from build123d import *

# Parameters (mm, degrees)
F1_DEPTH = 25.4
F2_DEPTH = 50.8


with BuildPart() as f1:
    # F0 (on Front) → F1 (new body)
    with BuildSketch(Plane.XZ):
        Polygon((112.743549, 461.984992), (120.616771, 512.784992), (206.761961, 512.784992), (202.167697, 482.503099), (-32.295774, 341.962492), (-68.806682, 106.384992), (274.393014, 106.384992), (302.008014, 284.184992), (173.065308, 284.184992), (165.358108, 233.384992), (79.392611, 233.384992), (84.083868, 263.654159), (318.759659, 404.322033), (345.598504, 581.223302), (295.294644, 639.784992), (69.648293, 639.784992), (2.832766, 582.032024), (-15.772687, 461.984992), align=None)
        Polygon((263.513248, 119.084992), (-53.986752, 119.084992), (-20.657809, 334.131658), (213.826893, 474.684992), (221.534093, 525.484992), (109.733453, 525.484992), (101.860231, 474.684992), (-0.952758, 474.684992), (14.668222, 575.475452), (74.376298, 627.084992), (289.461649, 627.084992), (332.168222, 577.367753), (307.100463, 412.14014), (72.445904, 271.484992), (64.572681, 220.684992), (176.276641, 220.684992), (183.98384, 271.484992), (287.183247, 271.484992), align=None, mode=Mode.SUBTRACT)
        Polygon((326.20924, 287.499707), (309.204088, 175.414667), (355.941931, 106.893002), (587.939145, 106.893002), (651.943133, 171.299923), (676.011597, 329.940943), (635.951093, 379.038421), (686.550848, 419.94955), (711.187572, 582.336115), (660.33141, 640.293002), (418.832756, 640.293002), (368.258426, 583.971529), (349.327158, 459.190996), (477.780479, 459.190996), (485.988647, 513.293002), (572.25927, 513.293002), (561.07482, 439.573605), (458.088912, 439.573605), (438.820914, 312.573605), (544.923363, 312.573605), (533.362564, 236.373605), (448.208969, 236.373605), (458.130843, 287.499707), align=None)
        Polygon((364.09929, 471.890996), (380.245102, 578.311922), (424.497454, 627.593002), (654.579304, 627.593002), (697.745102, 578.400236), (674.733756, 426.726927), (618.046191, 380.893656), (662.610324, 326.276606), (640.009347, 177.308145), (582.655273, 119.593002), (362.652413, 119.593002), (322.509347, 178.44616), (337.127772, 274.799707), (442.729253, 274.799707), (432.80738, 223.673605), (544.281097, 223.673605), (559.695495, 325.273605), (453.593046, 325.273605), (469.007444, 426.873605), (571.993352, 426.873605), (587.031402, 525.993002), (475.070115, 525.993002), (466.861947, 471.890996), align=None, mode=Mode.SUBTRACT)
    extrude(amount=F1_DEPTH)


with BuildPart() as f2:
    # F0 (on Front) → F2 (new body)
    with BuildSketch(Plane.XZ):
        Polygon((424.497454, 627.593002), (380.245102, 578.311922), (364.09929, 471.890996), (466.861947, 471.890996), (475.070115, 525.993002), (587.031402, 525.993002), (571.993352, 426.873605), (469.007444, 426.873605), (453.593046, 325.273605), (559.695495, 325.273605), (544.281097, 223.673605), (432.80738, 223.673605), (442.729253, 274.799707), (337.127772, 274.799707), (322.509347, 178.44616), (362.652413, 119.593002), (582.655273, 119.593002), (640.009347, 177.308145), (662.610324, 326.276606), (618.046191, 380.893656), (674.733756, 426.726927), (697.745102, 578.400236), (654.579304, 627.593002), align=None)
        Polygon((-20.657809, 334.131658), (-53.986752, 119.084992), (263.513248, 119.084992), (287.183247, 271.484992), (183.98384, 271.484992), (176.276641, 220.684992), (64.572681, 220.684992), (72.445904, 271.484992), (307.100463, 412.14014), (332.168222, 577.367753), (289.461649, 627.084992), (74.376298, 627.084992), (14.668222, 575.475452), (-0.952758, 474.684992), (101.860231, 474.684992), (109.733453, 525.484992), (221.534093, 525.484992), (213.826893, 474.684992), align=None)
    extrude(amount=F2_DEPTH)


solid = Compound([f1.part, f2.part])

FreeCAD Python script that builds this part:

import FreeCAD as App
import Part
import Sketcher
from FreeCAD import Vector
Q = App.Units.Quantity


def add_polygon(sketch, points):
    """Adds a closed chain of lines whose ends are joined by coincident constraints."""
    first, n = sketch.GeometryCount, len(points)
    for a, b in zip(points, points[1:] + points[:1]):
        sketch.addGeometry(Part.LineSegment(App.Vector(*a, 0), App.Vector(*b, 0)), False)
    for i in range(n):
        sketch.addConstraint(Sketcher.Constraint("Coincident", first + i, 2, first + (i + 1) % n, 1))

doc = App.newDocument("Part")
body = doc.addObject("PartDesign::Body", "Body")
body.AllowCompound = True

sketch1 = body.newObject("Sketcher::SketchObject", "Sketch")
sketch1.AttachmentSupport = (doc.getObject("XZ_Plane"), [""])
sketch1.MapMode = "FlatFace"
add_polygon(sketch1, [(113, 462), (121, 513), (207, 513), (202, 483), (-32, 342), (-69, 106), (274, 106), (302, 284), (173, 284), (165, 233), (79, 233), (84, 264), (319, 404), (346, 581), (295, 640), (70, 640), (3, 582), (-16, 462)])
add_polygon(sketch1, [(287, 271), (264, 119), (-54, 119), (-21, 334), (214, 475), (222, 525), (110, 525), (102, 475), (-1, 475), (15, 575), (74, 627), (289, 627), (332, 577), (307, 412), (72, 271), (65, 221), (176, 221), (184, 271)])
add_polygon(sketch1, [(326, 287), (309, 175), (356, 107), (588, 107), (652, 171), (676, 330), (636, 379), (687, 420), (711, 582), (660, 640), (419, 640), (368, 584), (349, 459), (478, 459), (486, 513), (572, 513), (561, 440), (458, 440), (439, 313), (545, 313), (533, 236), (448, 236), (458, 287)])
add_polygon(sketch1, [(467, 472), (364, 472), (380, 578), (424, 628), (655, 628), (698, 578), (675, 427), (618, 381), (663, 326), (640, 177), (583, 120), (363, 120), (323, 178), (337, 275), (443, 275), (433, 224), (544, 224), (560, 325), (454, 325), (469, 427), (572, 427), (587, 526), (475, 526)])
sketch1.addConstraint(Sketcher.Constraint("Horizontal", 1))
sketch1.addConstraint(Sketcher.Constraint("Horizontal", 5))
sketch1.addConstraint(Sketcher.Constraint("Horizontal", 7))
sketch1.addConstraint(Sketcher.Constraint("Horizontal", 9))
sketch1.addConstraint(Sketcher.Constraint("Horizontal", 14))
sketch1.addConstraint(Sketcher.Constraint("Horizontal", 17))
sketch1.addConstraint(Sketcher.Constraint("Horizontal", 19))
sketch1.addConstraint(Sketcher.Constraint("Horizontal", 23))
sketch1.addConstraint(Sketcher.Constraint("Horizontal", 25))
sketch1.addConstraint(Sketcher.Constraint("Horizontal", 28))
sketch1.addConstraint(Sketcher.Constraint("Horizontal", 33))
sketch1.addConstraint(Sketcher.Constraint("Horizontal", 35))
sketch1.addConstraint(Sketcher.Constraint("Horizontal", 38))
sketch1.addConstraint(Sketcher.Constraint("Horizontal", 45))
sketch1.addConstraint(Sketcher.Constraint("Horizontal", 48))
sketch1.addConstraint(Sketcher.Constraint("Horizontal", 50))
sketch1.addConstraint(Sketcher.Constraint("Horizontal", 52))
sketch1.addConstraint(Sketcher.Constraint("Horizontal", 54))
sketch1.addConstraint(Sketcher.Constraint("Horizontal", 56))
sketch1.addConstraint(Sketcher.Constraint("Horizontal", 58))
sketch1.addConstraint(Sketcher.Constraint("Horizontal", 59))
sketch1.addConstraint(Sketcher.Constraint("Horizontal", 62))
sketch1.addConstraint(Sketcher.Constraint("Horizontal", 69))
sketch1.addConstraint(Sketcher.Constraint("Horizontal", 72))
sketch1.addConstraint(Sketcher.Constraint("Horizontal", 74))
sketch1.addConstraint(Sketcher.Constraint("Horizontal", 76))
sketch1.addConstraint(Sketcher.Constraint("Horizontal", 78))
sketch1.addConstraint(Sketcher.Constraint("Horizontal", 80))
sketch1.addConstraint(Sketcher.Constraint("Parallel", 0, 4))
sketch1.addConstraint(Sketcher.Constraint("Parallel", 2, 8))
sketch1.addConstraint(Sketcher.Constraint("Parallel", 4, 10))
sketch1.addConstraint(Sketcher.Constraint("Parallel", 3, 11))
sketch1.addConstraint(Sketcher.Constraint("Parallel", 8, 12))
sketch1.addConstraint(Sketcher.Constraint("Parallel", 10, 16))
sketch1.addConstraint(Sketcher.Constraint("Parallel", 6, 18))
sketch1.addConstraint(Sketcher.Constraint("Parallel", 16, 20))
sketch1.addConstraint(Sketcher.Constraint("Parallel", 11, 21))
sketch1.addConstraint(Sketcher.Constraint("Parallel", 12, 22))
sketch1.addConstraint(Sketcher.Constraint("Parallel", 20, 24))
sketch1.addConstraint(Sketcher.Constraint("Parallel", 24, 26))
sketch1.addConstraint(Sketcher.Constraint("Parallel", 15, 27))
sketch1.addConstraint(Sketcher.Constraint("Parallel", 13, 29))
sketch1.addConstraint(Sketcher.Constraint("Parallel", 22, 30))
sketch1.addConstraint(Sketcher.Constraint("Parallel", 21, 31))
sketch1.addConstraint(Sketcher.Constraint("Parallel", 26, 32))
sketch1.addConstraint(Sketcher.Constraint("Parallel", 30, 34))
sketch1.addConstraint(Sketcher.Constraint("Parallel", 34, 36))
sketch1.addConstraint(Sketcher.Constraint("Parallel", 36, 40))
sketch1.addConstraint(Sketcher.Constraint("Parallel", 40, 43))
sketch1.addConstraint(Sketcher.Constraint("Parallel", 43, 47))
sketch1.addConstraint(Sketcher.Constraint("Parallel", 47, 49))
sketch1.addConstraint(Sketcher.Constraint("Parallel", 49, 51))
sketch1.addConstraint(Sketcher.Constraint("Parallel", 51, 53))
sketch1.addConstraint(Sketcher.Constraint("Parallel", 53, 55))
sketch1.addConstraint(Sketcher.Constraint("Parallel", 55, 60))
sketch1.addConstraint(Sketcher.Constraint("Parallel", 46, 61))
sketch1.addConstraint(Sketcher.Constraint("Parallel", 44, 63))
sketch1.addConstraint(Sketcher.Constraint("Parallel", 60, 64))
sketch1.addConstraint(Sketcher.Constraint("Parallel", 42, 65))
sketch1.addConstraint(Sketcher.Constraint("Parallel", 41, 66))
sketch1.addConstraint(Sketcher.Constraint("Parallel", 64, 67))
sketch1.addConstraint(Sketcher.Constraint("Parallel", 39, 68))
sketch1.addConstraint(Sketcher.Constraint("Parallel", 37, 70))
sketch1.addConstraint(Sketcher.Constraint("Parallel", 67, 71))
sketch1.addConstraint(Sketcher.Constraint("Parallel", 57, 73))
sketch1.addConstraint(Sketcher.Constraint("Parallel", 71, 75))
sketch1.addConstraint(Sketcher.Constraint("Parallel", 75, 77))
sketch1.addConstraint(Sketcher.Constraint("Parallel", 77, 79))
sketch1.addConstraint(Sketcher.Constraint("Parallel", 79, 81))
sketch1.addConstraint(Sketcher.Constraint("Horizontal", 21, 2, 24, 2))
sketch1.addConstraint(Sketcher.Constraint("Horizontal", 31, 2, 34, 2))
sketch1.addConstraint(Sketcher.Constraint("Equal", 54, 76))
sketch1.addConstraint(Sketcher.Constraint("Equal", 52, 78))
sketch1.addConstraint(Sketcher.Constraint("Equal", 8, 22))
sketch1.addConstraint(Sketcher.Constraint("Equal", 0, 24))
sketch1.addConstraint(Sketcher.Constraint("Equal", 24, 32))
sketch1.addConstraint(Sketcher.Constraint("Equal", 57, 73))
sketch1.addConstraint(Sketcher.Constraint("Equal", 75, 77))
sketch1.addConstraint(Sketcher.Constraint("Equal", 49, 81))
sketch1.addConstraint(Sketcher.Constraint("DistanceX", 19, 2, 19, 1, Q("12.5 in")))
sketch1.addConstraint(Sketcher.Constraint("DistanceX", 23, 2, 23, 1, Q("4.4016 in")))
sketch1.addConstraint(Sketcher.Constraint("Distance", 18, Q("154.227199 mm")))
sketch1.addConstraint(Sketcher.Constraint("DistanceX", 1, 1, 1, 2, Q("86.14519 mm")))
sketch1.addConstraint(Sketcher.Constraint("DistanceX", 14, 2, 14, 1, Q("225.646351 mm")))
sketch1.addConstraint(Sketcher.Constraint("DistanceX", 25, 2, 25, 1, Q("102.812989 mm")))
sketch1.addConstraint(Sketcher.Constraint("DistanceX", 28, 1, 28, 2, Q("215.085351 mm")))
sketch1.addConstraint(Sketcher.Constraint("DistanceX", 33, 1, 33, 2, Q("111.70396 mm")))
sketch1.addConstraint(Sketcher.Constraint("DistanceX", 48, 1, 48, 2, Q("128.453321 mm")))
sketch1.addConstraint(Sketcher.Constraint("DistanceX", 52, 2, 52, 1, Q("102.985908 mm")))
sketch1.addConstraint(Sketcher.Constraint("DistanceX", 54, 1, 54, 2, Q("106.102449 mm")))
sketch1.addConstraint(Sketcher.Constraint("DistanceX", 62, 1, 62, 2, Q("230.08185 mm")))
sketch1.addConstraint(Sketcher.Constraint("DistanceX", 69, 2, 69, 1, Q("220.00286 mm")))
sketch1.addConstraint(Sketcher.Constraint("DistanceX", 72, 1, 72, 2, Q("105.601481 mm")))
sketch1.addConstraint(Sketcher.Constraint("DistanceY", -1, 1, 2, 2, Q("482.503099 mm")))
sketch1.addConstraint(Sketcher.Constraint("DistanceY", -1, 1, 12, 2, Q("581.223302 mm")))
sketch1.addConstraint(Sketcher.Constraint("DistanceX", -1, 1, 27, 2, Q("74.376298 mm")))
sketch1.addConstraint(Sketcher.Constraint("DistanceY", -1, 1, 37, 2, Q("106.893002 mm")))
sketch1.addConstraint(Sketcher.Constraint("DistanceY", -1, 1, 44, 2, Q("640.293002 mm")))
sketch1.addConstraint(Sketcher.Constraint("DistanceY", -1, 1, 49, 2, Q("513.293002 mm")))
sketch1.addConstraint(Sketcher.Constraint("DistanceX", -1, 1, 60, 2, Q("380.245102 mm")))
sketch1.addConstraint(Sketcher.Constraint("DistanceY", -1, 1, 61, 2, Q("627.593002 mm")))
sketch1.addConstraint(Sketcher.Constraint("DistanceX", -1, 1, 63, 2, Q("697.745102 mm")))
sketch1.addConstraint(Sketcher.Constraint("DistanceY", -1, 1, 68, 2, Q("119.593002 mm")))
sketch1.addConstraint(Sketcher.Constraint("DistanceX", -1, 1, 79, 2, Q("587.031402 mm")))
sketch1.addConstraint(Sketcher.Constraint("DistanceY", -1, 1, 79, 2, Q("525.993002 mm")))
sketch1.addConstraint(Sketcher.Constraint("Distance", 3, Q("273.358339 mm")))
sketch1.addConstraint(Sketcher.Constraint("Distance", 8, Q("51.381329 mm")))
sketch1.addConstraint(Sketcher.Constraint("Distance", 11, Q("273.60588 mm")))
sketch1.addConstraint(Sketcher.Constraint("Distance", 13, Q("77.200712 mm")))
sketch1.addConstraint(Sketcher.Constraint("Distance", 20, Q("217.614078 mm")))
sketch1.addConstraint(Sketcher.Constraint("Distance", 29, Q("65.541248 mm")))
sketch1.addConstraint(Sketcher.Constraint("Distance", 30, Q("167.118391 mm")))
sketch1.addConstraint(Sketcher.Constraint("Distance", 39, Q("90.800672 mm")))
sketch1.addConstraint(Sketcher.Constraint("Distance", 42, Q("65.069622 mm")))
sketch1.addConstraint(Sketcher.Constraint("Distance", 43, Q("164.244831 mm")))
sketch1.addConstraint(Sketcher.Constraint("Distance", 49, Q("54.721121 mm")))
sketch1.addConstraint(Sketcher.Constraint("Distance", 53, Q("128.453321 mm")))
sketch1.addConstraint(Sketcher.Constraint("Distance", 60, Q("107.638751 mm")))
sketch1.addConstraint(Sketcher.Constraint("Distance", 63, Q("65.446271 mm")))
sketch1.addConstraint(Sketcher.Constraint("Distance", 64, Q("153.408979 mm")))
sketch1.addConstraint(Sketcher.Constraint("Distance", 66, Q("70.491021 mm")))
sketch1.addConstraint(Sketcher.Constraint("DistanceX", 5, 1, 5, 2, Q("343.199696 mm")))
sketch1.addConstraint(Sketcher.Constraint("DistanceX", 7, 2, 7, 1, Q("128.942706 mm")))
sketch1.addConstraint(Sketcher.Constraint("DistanceX", 9, 2, 9, 1, Q("85.965497 mm")))
sketch1.addConstraint(Sketcher.Constraint("DistanceX", 17, 1, 17, 2, Q("128.516236 mm")))
sketch1.addConstraint(Sketcher.Constraint("DistanceX", 35, 1, 35, 2, Q("103.199407 mm")))
sketch1.addConstraint(Sketcher.Constraint("DistanceX", 38, 1, 38, 2, Q("231.997214 mm")))
sketch1.addConstraint(Sketcher.Constraint("DistanceX", 45, 2, 45, 1, Q("241.498654 mm")))
sketch1.addConstraint(Sketcher.Constraint("DistanceX", 50, 1, 50, 2, Q("86.270623 mm")))
sketch1.addConstraint(Sketcher.Constraint("DistanceX", 56, 2, 56, 1, Q("85.153595 mm")))
sketch1.addConstraint(Sketcher.Constraint("DistanceX", 58, 2, 58, 1, Q("131.921603 mm")))
sketch1.addConstraint(Sketcher.Constraint("DistanceX", 59, 2, 59, 1, Q("102.762657 mm")))
sketch1.addConstraint(Sketcher.Constraint("DistanceX", 74, 1, 74, 2, Q("111.473717 mm")))
sketch1.addConstraint(Sketcher.Constraint("DistanceX", 80, 2, 80, 1, Q("111.961287 mm")))
sketch1.addConstraint(Sketcher.Constraint("DistanceX", -1, 1, 0, 2, Q("120.616771 mm")))
sketch1.addConstraint(Sketcher.Constraint("DistanceY", -1, 1, 0, 2, Q("512.784992 mm")))
sketch1.addConstraint(Sketcher.Constraint("DistanceY", -1, 1, 3, 2, Q("341.962492 mm")))
sketch1.addConstraint(Sketcher.Constraint("DistanceX", 4, 2, -1, 1, Q("68.806682 mm")))
sketch1.addConstraint(Sketcher.Constraint("DistanceY", -1, 1, 4, 2, Q("106.384992 mm")))
sketch1.addConstraint(Sketcher.Constraint("DistanceY", -1, 1, 6, 2, Q("284.184992 mm")))
sketch1.addConstraint(Sketcher.Constraint("DistanceX", -1, 1, 9, 2, Q("79.392611 mm")))
sketch1.addConstraint(Sketcher.Constraint("DistanceY", -1, 1, 10, 2, Q("263.654159 mm")))
sketch1.addConstraint(Sketcher.Constraint("DistanceY", -1, 1, 13, 2, Q("639.784992 mm")))
sketch1.addConstraint(Sketcher.Constraint("DistanceY", -1, 1, 18, 2, Q("119.084992 mm")))
sketch1.addConstraint(Sketcher.Constraint("DistanceX", 20, 2, -1, 1, Q("20.657809 mm")))
sketch1.addConstraint(Sketcher.Constraint("DistanceY", -1, 1, 21, 2, Q("474.684992 mm")))
sketch1.addConstraint(Sketcher.Constraint("DistanceY", -1, 1, 26, 2, Q("575.475452 mm")))
sketch1.addConstraint(Sketcher.Constraint("DistanceX", -1, 1, 36, 2, Q("309.204088 mm")))
sketch1.addConstraint(Sketcher.Constraint("DistanceX", -1, 1, 37, 2, Q("355.941931 mm")))
sketch1.addConstraint(Sketcher.Constraint("DistanceY", -1, 1, 41, 2, Q("379.038421 mm")))
sketch1.addConstraint(Sketcher.Constraint("DistanceX", -1, 1, 42, 2, Q("686.550848 mm")))
sketch1.addConstraint(Sketcher.Constraint("DistanceY", -1, 1, 42, 2, Q("419.94955 mm")))
sketch1.addConstraint(Sketcher.Constraint("DistanceX", -1, 1, 44, 2, Q("660.33141 mm")))
sketch1.addConstraint(Sketcher.Constraint("DistanceY", -1, 1, 46, 2, Q("583.971529 mm")))
sketch1.addConstraint(Sketcher.Constraint("DistanceX", -1, 1, 51, 2, Q("561.07482 mm")))
sketch1.addConstraint(Sketcher.Constraint("DistanceX", -1, 1, 56, 2, Q("448.208969 mm")))
sketch1.addConstraint(Sketcher.Constraint("DistanceX", -1, 1, 58, 2, Q("326.20924 mm")))
sketch1.addConstraint(Sketcher.Constraint("DistanceX", -1, 1, 65, 2, Q("618.046191 mm")))
sketch1.addConstraint(Sketcher.Constraint("DistanceY", -1, 1, 70, 2, Q("178.44616 mm")))
sketch1.addConstraint(Sketcher.Constraint("DistanceX", -1, 1, 71, 2, Q("337.127772 mm")))
sketch1.addConstraint(Sketcher.Constraint("DistanceX", -1, 1, 78, 2, Q("571.993352 mm")))
sketch1.addConstraint(Sketcher.Constraint("Distance", 37, Q("82.943623 mm")))
sketch1.addConstraint(Sketcher.Constraint("Distance", 40, Q("160.456425 mm")))
sketch1.addConstraint(Sketcher.Constraint("Distance", 41, Q("63.367234 mm")))
pad1 = body.newObject("PartDesign::Pad", "Pad")
pad1.Profile = sketch1
pad1.Length = Q("1 in")
body2 = doc.addObject("PartDesign::Body", "Body001")
body2.AllowCompound = True

sketch2 = body2.newObject("Sketcher::SketchObject", "Sketch001")
sketch2.AttachmentSupport = (doc.getObject("XZ_Plane001"), [""])
sketch2.MapMode = "FlatFace"
add_polygon(sketch2, [(424, 628), (380, 578), (364, 472), (467, 472), (475, 526), (587, 526), (572, 427), (469, 427), (454, 325), (560, 325), (544, 224), (433, 224), (443, 275), (337, 275), (323, 178), (363, 120), (583, 120), (640, 177), (663, 326), (618, 381), (675, 427), (698, 578), (655, 628)])
add_polygon(sketch2, [(-21, 334), (-54, 119), (264, 119), (287, 271), (184, 271), (176, 221), (65, 221), (72, 271), (307, 412), (332, 577), (289, 627), (74, 627), (15, 575), (-1, 475), (102, 475), (110, 525), (222, 525), (214, 475)])
sketch2.addConstraint(Sketcher.Constraint("Horizontal", 2))
sketch2.addConstraint(Sketcher.Constraint("Horizontal", 4))
sketch2.addConstraint(Sketcher.Constraint("Horizontal", 6))
sketch2.addConstraint(Sketcher.Constraint("Horizontal", 8))
sketch2.addConstraint(Sketcher.Constraint("Horizontal", 10))
sketch2.addConstraint(Sketcher.Constraint("Horizontal", 12))
sketch2.addConstraint(Sketcher.Constraint("Horizontal", 15))
sketch2.addConstraint(Sketcher.Constraint("Horizontal", 22))
sketch2.addConstraint(Sketcher.Constraint("Horizontal", 24))
sketch2.addConstraint(Sketcher.Constraint("Horizontal", 26))
sketch2.addConstraint(Sketcher.Constraint("Horizontal", 28))
sketch2.addConstraint(Sketcher.Constraint("Horizontal", 33))
sketch2.addConstraint(Sketcher.Constraint("Horizontal", 36))
sketch2.addConstraint(Sketcher.Constraint("Horizontal", 38))
sketch2.addConstraint(Sketcher.Constraint("Parallel", 1, 3))
sketch2.addConstraint(Sketcher.Constraint("Parallel", 3, 5))
sketch2.addConstraint(Sketcher.Constraint("Parallel", 5, 7))
sketch2.addConstraint(Sketcher.Constraint("Parallel", 7, 9))
sketch2.addConstraint(Sketcher.Constraint("Parallel", 9, 13))
sketch2.addConstraint(Sketcher.Constraint("Parallel", 13, 17))
sketch2.addConstraint(Sketcher.Constraint("Parallel", 17, 20))
sketch2.addConstraint(Sketcher.Constraint("Parallel", 20, 27))
sketch2.addConstraint(Sketcher.Constraint("Parallel", 23, 29))
sketch2.addConstraint(Sketcher.Constraint("Parallel", 27, 31))
sketch2.addConstraint(Sketcher.Constraint("Parallel", 29, 35))
sketch2.addConstraint(Sketcher.Constraint("Parallel", 35, 37))
sketch2.addConstraint(Sketcher.Constraint("Parallel", 31, 39))
sketch2.addConstraint(Sketcher.Constraint("Parallel", 30, 40))
sketch2.addConstraint(Sketcher.Constraint("Horizontal", 26, 2, 29, 2))
sketch2.addConstraint(Sketcher.Constraint("Horizontal", 36, 2, 39, 2))
sketch2.addConstraint(Sketcher.Constraint("Equal", 7, 9))
sketch2.addConstraint(Sketcher.Constraint("Equal", 29, 37))
sketch2.addConstraint(Sketcher.Constraint("DistanceX", 24, 1, 24, 2, Q("12.5 in")))
sketch2.addConstraint(Sketcher.Constraint("DistanceY", 7, 2, 6, 2, Q("4 in")))
sketch2.addConstraint(Sketcher.Constraint("DistanceY", 4, 2, 21, 2, Q("4 in")))
sketch2.addConstraint(Sketcher.Constraint("DistanceY", 24, 2, 25, 2, Q("6 in")))
sketch2.addConstraint(Sketcher.Constraint("DistanceY", 27, 2, 26, 2, Q("2 in")))
sketch2.addConstraint(Sketcher.Constraint("DistanceY", 35, 2, 33, 2, Q("6 in")))
sketch2.addConstraint(Sketcher.Constraint("DistanceY", 29, 2, 35, 2, Q("8 in")))
sketch2.addConstraint(Sketcher.Constraint("DistanceX", 34, 2, 31, 2, Q("12.5 in")))
sketch2.addConstraint(Sketcher.Constraint("DistanceY", 1, 2, 32, 2, Q("6.1099998 in")))
sketch2.addConstraint(Sketcher.Constraint("DistanceX", 38, 1, 38, 2, Q("4.4016 in")))
sketch2.addConstraint(Sketcher.Constraint("DistanceX", 10, 2, 11, 2, Q("0.3906249 in")))
sketch2.addConstraint(Sketcher.Constraint("DistanceY", 3, 2, 0, 2, Q("2.0598 in")))
sketch2.addConstraint(Sketcher.Constraint("DistanceY", 14, 2, 12, 2, Q("6.1105002 in")))
sketch2.addConstraint(Sketcher.Constraint("DistanceY", 16, 2, 17, 2, Q("5.8649 in")))
sketch2.addConstraint(Sketcher.Constraint("DistanceY", 34, 2, 31, 2, Q("0.0745 in")))
sketch2.addConstraint(Sketcher.Constraint("Distance", 25, Q("154.227199 mm")))
sketch2.addConstraint(Sketcher.Constraint("DistanceX", 8, 1, 8, 2, Q("106.102449 mm")))
sketch2.addConstraint(Sketcher.Constraint("DistanceX", 12, 2, 12, 1, Q("105.601481 mm")))
sketch2.addConstraint(Sketcher.Constraint("DistanceX", 15, 1, 15, 2, Q("220.00286 mm")))
sketch2.addConstraint(Sketcher.Constraint("DistanceX", 22, 2, 22, 1, Q("230.08185 mm")))
sketch2.addConstraint(Sketcher.Constraint("DistanceX", 28, 2, 28, 1, Q("111.70396 mm")))
sketch2.addConstraint(Sketcher.Constraint("DistanceX", 33, 2, 33, 1, Q("215.085351 mm")))
sketch2.addConstraint(Sketcher.Constraint("DistanceX", 36, 1, 36, 2, Q("102.812989 mm")))
sketch2.addConstraint(Sketcher.Constraint("DistanceX", -1, 1, 0, 2, Q("380.245102 mm")))
sketch2.addConstraint(Sketcher.Constraint("DistanceY", -1, 1, 3, 2, Q("525.993002 mm")))
sketch2.addConstraint(Sketcher.Constraint("DistanceX", -1, 1, 4, 2, Q("587.031402 mm")))
sketch2.addConstraint(Sketcher.Constraint("DistanceY", -1, 1, 14, 2, Q("119.593002 mm")))
sketch2.addConstraint(Sketcher.Constraint("DistanceX", -1, 1, 20, 2, Q("697.745102 mm")))
sketch2.addConstraint(Sketcher.Constraint("DistanceX", -1, 1, 33, 2, Q("74.376298 mm")))
sketch2.addConstraint(Sketcher.Constraint("DistanceX", 7, 2, 6, 2, Q("15.414398 mm")))
sketch2.addConstraint(Sketcher.Constraint("DistanceX", 7, 2, 2, 2, Q("13.268901 mm")))
sketch2.addConstraint(Sketcher.Constraint("DistanceX", 13, 2, 7, 2, Q("131.083699 mm")))
sketch2.addConstraint(Sketcher.Constraint("DistanceY", 8, 2, 17, 2, Q("1.003001 mm")))
sketch2.addConstraint(Sketcher.Constraint("DistanceX", 23, 2, 13, 2, Q("376.496099 mm")))
sketch2.addConstraint(Sketcher.Constraint("Distance", 1, Q("107.638751 mm")))
sketch2.addConstraint(Sketcher.Constraint("Distance", 18, Q("70.491021 mm")))
sketch2.addConstraint(Sketcher.Constraint("Distance", 20, Q("153.408979 mm")))
sketch2.addConstraint(Sketcher.Constraint("Distance", 21, Q("65.446271 mm")))
sketch2.addConstraint(Sketcher.Constraint("Distance", 23, Q("217.614078 mm")))
sketch2.addConstraint(Sketcher.Constraint("Distance", 31, Q("167.118391 mm")))
sketch2.addConstraint(Sketcher.Constraint("Distance", 32, Q("65.541248 mm")))
sketch2.addConstraint(Sketcher.Constraint("DistanceX", 2, 1, 2, 2, Q("102.762657 mm")))
sketch2.addConstraint(Sketcher.Constraint("DistanceX", 6, 2, 6, 1, Q("102.985908 mm")))
sketch2.addConstraint(Sketcher.Constraint("DistanceX", 10, 2, 10, 1, Q("111.473717 mm")))
sketch2.addConstraint(Sketcher.Constraint("DistanceX", 26, 2, 26, 1, Q("103.199407 mm")))
sketch2.addConstraint(Sketcher.Constraint("DistanceX", -1, 1, 18, 2, Q("618.046191 mm")))
sketch2.addConstraint(Sketcher.Constraint("DistanceY", -1, 1, 30, 2, Q("412.14014 mm")))
sketch2.addConstraint(Sketcher.Constraint("DistanceX", 12, 2, 14, 2, Q("25.524641 mm")))
sketch2.addConstraint(Sketcher.Constraint("DistanceX", 9, 2, 16, 2, Q("95.72825 mm")))
sketch2.addConstraint(Sketcher.Constraint("DistanceY", 18, 2, 19, 2, Q("45.833271 mm")))
pad2 = body2.newObject("PartDesign::Pad", "Pad001")
pad2.Profile = sketch2
pad2.Length = Q("2 in")

doc.recompute()
